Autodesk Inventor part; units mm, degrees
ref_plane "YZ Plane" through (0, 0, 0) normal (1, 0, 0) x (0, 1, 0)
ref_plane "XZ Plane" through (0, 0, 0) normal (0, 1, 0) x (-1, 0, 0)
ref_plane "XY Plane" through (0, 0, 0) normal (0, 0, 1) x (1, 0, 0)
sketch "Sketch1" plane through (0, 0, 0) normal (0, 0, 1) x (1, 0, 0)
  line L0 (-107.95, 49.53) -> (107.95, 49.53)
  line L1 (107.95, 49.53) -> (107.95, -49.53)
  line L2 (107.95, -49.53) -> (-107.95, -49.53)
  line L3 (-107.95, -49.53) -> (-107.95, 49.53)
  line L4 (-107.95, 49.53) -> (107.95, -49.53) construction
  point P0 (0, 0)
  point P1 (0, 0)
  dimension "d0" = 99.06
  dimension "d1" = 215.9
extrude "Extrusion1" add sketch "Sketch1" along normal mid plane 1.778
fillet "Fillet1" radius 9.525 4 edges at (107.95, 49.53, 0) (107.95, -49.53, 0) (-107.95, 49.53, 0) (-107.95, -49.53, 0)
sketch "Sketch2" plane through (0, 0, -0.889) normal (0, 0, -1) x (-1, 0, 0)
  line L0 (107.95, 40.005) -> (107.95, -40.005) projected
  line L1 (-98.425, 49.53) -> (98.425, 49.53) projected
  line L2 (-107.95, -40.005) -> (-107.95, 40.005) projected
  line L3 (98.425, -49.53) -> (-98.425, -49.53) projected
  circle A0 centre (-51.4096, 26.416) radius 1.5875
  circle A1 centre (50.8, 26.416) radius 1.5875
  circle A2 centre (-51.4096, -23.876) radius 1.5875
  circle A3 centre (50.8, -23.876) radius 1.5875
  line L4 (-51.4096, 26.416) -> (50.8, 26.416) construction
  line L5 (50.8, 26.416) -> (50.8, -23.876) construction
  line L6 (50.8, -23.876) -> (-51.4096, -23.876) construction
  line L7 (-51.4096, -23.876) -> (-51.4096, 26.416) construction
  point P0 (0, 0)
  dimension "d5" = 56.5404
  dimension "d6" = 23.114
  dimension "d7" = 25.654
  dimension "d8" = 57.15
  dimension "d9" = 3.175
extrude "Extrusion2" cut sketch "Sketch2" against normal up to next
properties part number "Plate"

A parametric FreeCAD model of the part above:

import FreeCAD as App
import Part
import Sketcher
Q = App.Units.Quantity


def edges_at(feature, points):
    """Names of the edges that pass closest to the given points."""
    edges = feature.Shape.Edges
    near = lambda p: min(range(len(edges)), key=lambda i: edges[i].distToShape(Part.Vertex(*p))[0])
    return sorted({f"Edge{near(p) + 1}" for p in points})

doc = App.newDocument("Part")
body = doc.addObject("PartDesign::Body", "Body")

# Sketch on XY plane
sketch1 = body.newObject("Sketcher::SketchObject", "Sketch")
sketch1.AttachmentSupport = (doc.getObject("XY_Plane"), [""])
sketch1.MapMode = "FlatFace"
sketch1.addGeometry(Part.LineSegment(App.Vector(107.95, 49.53, 0), App.Vector(-107.95, 49.53, 0)), False)
sketch1.addGeometry(Part.LineSegment(App.Vector(-107.95, 49.53, 0), App.Vector(-107.95, -49.53, 0)), False)
sketch1.addGeometry(Part.LineSegment(App.Vector(-107.95, -49.53, 0), App.Vector(107.95, -49.53, 0)), False)
sketch1.addGeometry(Part.LineSegment(App.Vector(107.95, -49.53, 0), App.Vector(107.95, 49.53, 0)), False)
sketch1.addConstraint(Sketcher.Constraint("Coincident", 0, 2, 1, 1))
sketch1.addConstraint(Sketcher.Constraint("Coincident", 1, 2, 2, 1))
sketch1.addConstraint(Sketcher.Constraint("Coincident", 2, 2, 3, 1))
sketch1.addConstraint(Sketcher.Constraint("Coincident", 3, 2, 0, 1))
sketch1.addConstraint(Sketcher.Constraint("Horizontal", 0))
sketch1.addConstraint(Sketcher.Constraint("Vertical", 1))
sketch1.addConstraint(Sketcher.Constraint("Horizontal", 2))
sketch1.addConstraint(Sketcher.Constraint("Vertical", 3))
sketch1.addConstraint(Sketcher.Constraint("Symmetric", 0, 2, 2, 2, -1, 1))
sketch1.addConstraint(Sketcher.Constraint("DistanceX", 0, 2, 0, 1, Q("8.5 in")))
sketch1.addConstraint(Sketcher.Constraint("DistanceY", 1, 2, 1, 1, Q("3.9 in")))
pad1 = body.newObject("PartDesign::Pad", "Pad")
pad1.Profile = sketch1
pad1.Length = Q("0.07 in")
pad1.Midplane = True
doc.recompute()

fillet = body.newObject("PartDesign::Fillet", "Fillet")
fillet.Base = (pad1, edges_at(pad1, [
    (107.95, 49.53, 0),
    (107.95, -49.53, 0),
    (-107.95, 49.53, 0),
    (-107.95, -49.53, 0),
]))
fillet.Radius = Q("0.375 in")

# Sketch on XY plane
sketch2 = body.newObject("Sketcher::SketchObject", "Sketch001")
sketch2.AttachmentSupport = (doc.getObject("XY_Plane"), [""])
sketch2.MapMode = "FlatFace"
sketch2.AttachmentOffset = App.Placement(App.Vector(0, 0, -0.035 * 25.4), App.Rotation())
sketch2.addGeometry(Part.Circle(App.Vector(51.4096, 26.416, 0), App.Vector(0, 0, 1), 1.5875), False)
sketch2.addGeometry(Part.Circle(App.Vector(-50.8, 26.416, 0), App.Vector(0, 0, 1), 1.5875), False)
sketch2.addGeometry(Part.Circle(App.Vector(51.4096, -23.876, 0), App.Vector(0, 0, 1), 1.5875), False)
sketch2.addGeometry(Part.Circle(App.Vector(-50.8, -23.876, 0), App.Vector(0, 0, 1), 1.5875), False)
sketch2.addConstraint(Sketcher.Constraint("Equal", 0, 1))
sketch2.addConstraint(Sketcher.Constraint("Equal", 1, 2))
sketch2.addConstraint(Sketcher.Constraint("Equal", 2, 3))
sketch2.addConstraint(Sketcher.Constraint("Horizontal", 0, 3, 1, 3))
sketch2.addConstraint(Sketcher.Constraint("Horizontal", 2, 3, 3, 3))
sketch2.addConstraint(Sketcher.Constraint("Vertical", 0, 3, 2, 3))
sketch2.addConstraint(Sketcher.Constraint("Vertical", 1, 3, 3, 3))
sketch2.addConstraint(Sketcher.Constraint("Diameter", 0, Q("0.125 in")))
sketch2.addConstraint(Sketcher.Constraint("DistanceX", 1, 3, -1, 1, Q("2 in")))
sketch2.addConstraint(Sketcher.Constraint("DistanceY", -1, 1, 0, 3, Q("1.04 in")))
sketch2.addConstraint(Sketcher.Constraint("DistanceY", 2, 3, -1, 1, Q("0.94 in")))
sketch2.addConstraint(Sketcher.Constraint("DistanceX", -1, 1, 0, 3, Q("2.024 in")))
pocket1 = body.newObject("PartDesign::Pocket", "Pocket")
pocket1.Profile = sketch2
pocket1.Length = Q("0.07 in")
pocket1.Reversed = True

doc.recompute()
